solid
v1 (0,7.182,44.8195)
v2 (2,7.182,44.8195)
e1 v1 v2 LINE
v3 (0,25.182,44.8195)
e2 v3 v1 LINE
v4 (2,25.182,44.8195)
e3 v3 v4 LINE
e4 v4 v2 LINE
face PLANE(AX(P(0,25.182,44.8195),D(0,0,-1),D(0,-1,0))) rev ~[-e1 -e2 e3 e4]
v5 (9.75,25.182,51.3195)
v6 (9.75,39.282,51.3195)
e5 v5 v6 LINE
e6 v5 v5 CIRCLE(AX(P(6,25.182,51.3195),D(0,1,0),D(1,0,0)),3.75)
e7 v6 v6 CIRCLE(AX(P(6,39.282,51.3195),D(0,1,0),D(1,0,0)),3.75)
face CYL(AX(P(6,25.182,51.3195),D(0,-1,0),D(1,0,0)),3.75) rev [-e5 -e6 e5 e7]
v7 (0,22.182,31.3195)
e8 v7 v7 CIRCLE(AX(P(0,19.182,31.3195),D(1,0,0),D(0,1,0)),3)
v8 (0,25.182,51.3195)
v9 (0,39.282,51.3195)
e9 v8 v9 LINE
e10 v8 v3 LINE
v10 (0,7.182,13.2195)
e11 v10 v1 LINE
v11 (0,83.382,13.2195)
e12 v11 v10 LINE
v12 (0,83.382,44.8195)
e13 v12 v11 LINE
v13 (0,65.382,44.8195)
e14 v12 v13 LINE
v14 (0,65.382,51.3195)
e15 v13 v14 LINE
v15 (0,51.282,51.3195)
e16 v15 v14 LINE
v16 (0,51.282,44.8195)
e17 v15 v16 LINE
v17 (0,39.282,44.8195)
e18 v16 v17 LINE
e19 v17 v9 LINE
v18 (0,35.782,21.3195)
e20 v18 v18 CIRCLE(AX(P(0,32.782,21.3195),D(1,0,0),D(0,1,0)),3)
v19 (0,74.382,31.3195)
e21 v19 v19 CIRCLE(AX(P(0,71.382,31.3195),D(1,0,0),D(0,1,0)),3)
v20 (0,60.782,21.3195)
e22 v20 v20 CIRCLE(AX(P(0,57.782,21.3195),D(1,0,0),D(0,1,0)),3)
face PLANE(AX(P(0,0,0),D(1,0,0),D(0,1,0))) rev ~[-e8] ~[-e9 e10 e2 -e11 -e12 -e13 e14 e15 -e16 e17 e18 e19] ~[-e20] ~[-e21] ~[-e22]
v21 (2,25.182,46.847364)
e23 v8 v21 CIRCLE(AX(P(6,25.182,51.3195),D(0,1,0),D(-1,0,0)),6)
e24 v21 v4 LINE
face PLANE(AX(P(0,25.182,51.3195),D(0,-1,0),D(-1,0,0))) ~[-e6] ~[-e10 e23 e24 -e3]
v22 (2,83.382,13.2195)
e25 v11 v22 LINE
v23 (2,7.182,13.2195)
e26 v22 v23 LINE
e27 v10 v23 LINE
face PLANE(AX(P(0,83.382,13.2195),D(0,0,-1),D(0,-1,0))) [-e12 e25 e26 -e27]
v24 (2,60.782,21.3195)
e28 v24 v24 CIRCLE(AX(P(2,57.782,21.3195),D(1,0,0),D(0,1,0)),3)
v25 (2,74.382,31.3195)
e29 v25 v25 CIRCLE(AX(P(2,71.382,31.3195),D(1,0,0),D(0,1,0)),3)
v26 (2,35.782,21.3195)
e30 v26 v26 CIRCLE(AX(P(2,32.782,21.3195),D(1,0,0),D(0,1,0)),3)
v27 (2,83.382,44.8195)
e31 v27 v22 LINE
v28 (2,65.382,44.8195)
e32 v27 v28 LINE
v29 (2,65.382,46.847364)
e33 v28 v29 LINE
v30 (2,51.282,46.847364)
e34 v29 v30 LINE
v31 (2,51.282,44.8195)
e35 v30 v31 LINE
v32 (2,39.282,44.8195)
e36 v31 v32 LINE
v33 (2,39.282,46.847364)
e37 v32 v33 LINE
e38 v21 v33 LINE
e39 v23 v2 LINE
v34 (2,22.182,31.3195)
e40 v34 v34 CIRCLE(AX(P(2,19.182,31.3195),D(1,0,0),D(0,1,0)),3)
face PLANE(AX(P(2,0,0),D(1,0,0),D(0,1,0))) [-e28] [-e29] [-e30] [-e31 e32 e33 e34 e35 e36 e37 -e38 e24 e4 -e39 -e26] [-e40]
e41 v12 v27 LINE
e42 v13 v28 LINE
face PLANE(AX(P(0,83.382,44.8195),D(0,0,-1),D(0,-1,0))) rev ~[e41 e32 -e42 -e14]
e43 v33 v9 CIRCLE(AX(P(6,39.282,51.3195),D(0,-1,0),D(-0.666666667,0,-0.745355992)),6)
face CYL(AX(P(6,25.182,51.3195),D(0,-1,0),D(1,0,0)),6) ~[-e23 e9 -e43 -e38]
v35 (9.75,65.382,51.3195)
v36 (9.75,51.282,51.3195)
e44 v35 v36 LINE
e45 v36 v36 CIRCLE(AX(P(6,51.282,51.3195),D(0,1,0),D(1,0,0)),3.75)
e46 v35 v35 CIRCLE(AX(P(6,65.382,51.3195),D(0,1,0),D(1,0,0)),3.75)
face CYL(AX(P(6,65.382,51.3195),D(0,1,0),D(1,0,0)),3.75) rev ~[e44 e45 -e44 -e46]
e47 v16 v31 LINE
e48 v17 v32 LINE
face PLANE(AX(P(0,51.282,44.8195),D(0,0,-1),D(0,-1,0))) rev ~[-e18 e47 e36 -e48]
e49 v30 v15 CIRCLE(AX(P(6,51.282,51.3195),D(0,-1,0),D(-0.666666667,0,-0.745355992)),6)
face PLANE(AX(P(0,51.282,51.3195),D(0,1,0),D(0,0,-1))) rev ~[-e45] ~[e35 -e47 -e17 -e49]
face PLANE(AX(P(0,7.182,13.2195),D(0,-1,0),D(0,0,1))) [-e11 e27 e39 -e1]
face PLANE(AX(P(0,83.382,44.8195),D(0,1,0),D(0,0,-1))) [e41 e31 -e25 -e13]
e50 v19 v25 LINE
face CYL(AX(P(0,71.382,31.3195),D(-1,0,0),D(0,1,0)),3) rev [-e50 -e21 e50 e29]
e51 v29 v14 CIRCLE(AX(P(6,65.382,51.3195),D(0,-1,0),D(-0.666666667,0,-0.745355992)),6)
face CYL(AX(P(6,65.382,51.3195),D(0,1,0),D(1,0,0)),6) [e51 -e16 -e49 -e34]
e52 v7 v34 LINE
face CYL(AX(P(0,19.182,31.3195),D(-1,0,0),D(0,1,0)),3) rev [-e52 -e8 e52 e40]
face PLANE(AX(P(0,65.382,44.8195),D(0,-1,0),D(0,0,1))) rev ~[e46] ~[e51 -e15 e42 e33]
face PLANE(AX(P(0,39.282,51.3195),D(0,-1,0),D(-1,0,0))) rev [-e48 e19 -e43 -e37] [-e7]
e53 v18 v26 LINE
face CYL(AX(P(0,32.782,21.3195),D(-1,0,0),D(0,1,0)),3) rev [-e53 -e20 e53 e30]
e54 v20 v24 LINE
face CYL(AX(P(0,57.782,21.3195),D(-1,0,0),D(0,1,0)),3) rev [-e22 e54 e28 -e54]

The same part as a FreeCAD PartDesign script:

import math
import FreeCAD as App
import Part
import Sketcher

V = App.Vector

doc = App.newDocument("Part")
body = doc.addObject("PartDesign::Body", "Body")

# Sketch on YZ plane
sketch1 = body.newObject("Sketcher::SketchObject", "Sketch")
sketch1.AttachmentSupport = (doc.getObject("YZ_Plane"), [""])
sketch1.MapMode = "FlatFace"
sketch1.addGeometry([
    Part.LineSegment(V(39.282, 51.3195, 0), V(25.182, 51.3195, 0)),  # 0
    Part.LineSegment(V(25.182, 51.3195, 0), V(25.182, 44.8195, 0)),  # 1
    Part.LineSegment(V(25.182, 44.8195, 0), V(7.182, 44.8195, 0)),  # 2
    Part.LineSegment(V(7.182, 44.8195, 0), V(7.182, 13.2195, 0)),  # 3
    Part.LineSegment(V(7.182, 13.2195, 0), V(83.382, 13.2195, 0)),  # 4
    Part.LineSegment(V(83.382, 13.2195, 0), V(83.382, 44.8195, 0)),  # 5
    Part.LineSegment(V(83.382, 44.8195, 0), V(65.382, 44.8195, 0)),  # 6
    Part.LineSegment(V(65.382, 44.8195, 0), V(65.382, 51.3195, 0)),  # 7
    Part.LineSegment(V(65.382, 51.3195, 0), V(51.282, 51.3195, 0)),  # 8
    Part.LineSegment(V(51.282, 51.3195, 0), V(51.282, 44.8195, 0)),  # 9
    Part.LineSegment(V(51.282, 44.8195, 0), V(39.282, 44.8195, 0)),  # 10
    Part.LineSegment(V(39.282, 44.8195, 0), V(39.282, 51.3195, 0)),  # 11
    Part.Circle(V(32.782, 21.3195, 0), V(0, 0, 1), 3),  # 12
    Part.Circle(V(19.182, 31.3195, 0), V(0, 0, 1), 3),  # 13
    Part.Circle(V(57.782, 21.3195, 0), V(0, 0, 1), 3),  # 14
    Part.Circle(V(71.382, 31.3195, 0), V(0, 0, 1), 3),  # 15
], False)
sketch1.addConstraint([
    Sketcher.Constraint("Coincident", 0, 2, 1, 1),
    Sketcher.Constraint("Coincident", 1, 2, 2, 1),
    Sketcher.Constraint("Coincident", 2, 2, 3, 1),
    Sketcher.Constraint("Coincident", 3, 2, 4, 1),
    Sketcher.Constraint("Coincident", 4, 2, 5, 1),
    Sketcher.Constraint("Coincident", 5, 2, 6, 1),
    Sketcher.Constraint("Coincident", 6, 2, 7, 1),
    Sketcher.Constraint("Coincident", 7, 2, 8, 1),
    Sketcher.Constraint("Coincident", 8, 2, 9, 1),
    Sketcher.Constraint("Coincident", 9, 2, 10, 1),
    Sketcher.Constraint("Coincident", 10, 2, 11, 1),
    Sketcher.Constraint("Coincident", 11, 2, 0, 1),
    Sketcher.Constraint("Horizontal", 0),
    Sketcher.Constraint("Vertical", 1),
    Sketcher.Constraint("Horizontal", 2),
    Sketcher.Constraint("Vertical", 3),
    Sketcher.Constraint("Horizontal", 4),
    Sketcher.Constraint("Vertical", 5),
    Sketcher.Constraint("Horizontal", 6),
    Sketcher.Constraint("Vertical", 7),
    Sketcher.Constraint("Horizontal", 8),
    Sketcher.Constraint("Vertical", 9),
    Sketcher.Constraint("Horizontal", 10),
    Sketcher.Constraint("Vertical", 11),
    Sketcher.Constraint("Equal", 12, 13),
    Sketcher.Constraint("Equal", 13, 14),
    Sketcher.Constraint("Equal", 14, 15),
    Sketcher.Constraint("Horizontal", 12, 3, 14, 3),
    Sketcher.Constraint("Horizontal", 13, 3, 15, 3),
    Sketcher.Constraint("Horizontal", 2, 2, 5, 2),
    Sketcher.Constraint("Horizontal", 0, 2, 7, 2),
    Sketcher.Constraint("Horizontal", 6, 2, 9, 2),
    Sketcher.Constraint("Equal", 2, 6),
    Sketcher.Constraint("Equal", 0, 8),
    Sketcher.Constraint("Diameter", 12, 6.0),
    Sketcher.Constraint("DistanceX", 2, 2, 2, 1, 18.0),
    Sketcher.Constraint("DistanceX", 10, 2, 10, 1, 12.0),
    Sketcher.Constraint("DistanceX", 4, 1, 4, 2, 76.2),
    Sketcher.Constraint("DistanceY", 1, 2, 1, 1, 6.5),
    Sketcher.Constraint("DistanceX", 13, 3, 0, 2, 6.0),
    Sketcher.Constraint("DistanceY", 13, 3, 0, 2, 20.0),
    Sketcher.Constraint("DistanceY", 12, 3, 0, 2, 30.0),
    Sketcher.Constraint("DistanceX", 15, 3, 4, 2, 12.0),
    Sketcher.Constraint("DistanceY", 3, 2, 0, 2, 38.1),
    Sketcher.Constraint("DistanceX", 9, 2, 14, 3, 6.5),
    Sketcher.Constraint("DistanceX", 12, 3, 14, 3, 25.0),
    Sketcher.Constraint("DistanceX", -1, 1, 12, 3, 32.782),
    Sketcher.Constraint("DistanceY", -1, 1, 12, 3, 21.3195),
])
pad1 = body.newObject("PartDesign::Pad", "Pad")
pad1.Profile = sketch1
pad1.Length = 2

# Sketch on XZ plane
sketch2 = body.newObject("Sketcher::SketchObject", "Sketch001")
sketch2.AttachmentSupport = (doc.getObject("XZ_Plane"), [""])
sketch2.MapMode = "FlatFace"
sketch2.AttachmentOffset = App.Placement(V(0, 0, -65.382), App.Rotation())
sketch2.addGeometry([
    Part.LineSegment(V(2, 51.3195, 0), V(0, 51.3195, 0)),
    Part.ArcOfCircle(Part.Circle(V(6, 51.3195, 0), V(0, 0, 1), 6), math.radians(-131.810315), math.radians(180)),
    Part.LineSegment(V(2, 46.847364, 0), V(2, 51.3195, 0)),
    Part.Circle(V(6, 51.3195, 0), V(0, 0, 1), 3.75),
], False)
sketch2.addConstraint([
    Sketcher.Constraint("Coincident", 0, 2, 1, 2),
    Sketcher.Constraint("Coincident", 1, 1, 2, 1),
    Sketcher.Constraint("Coincident", 2, 2, 0, 1),
    Sketcher.Constraint("Horizontal", 0),
    Sketcher.Constraint("Vertical", 2),
    Sketcher.Constraint("Coincident", 3, 3, 1, 3),
    Sketcher.Constraint("PointOnObject", 0, 2, -2),
    Sketcher.Constraint("Horizontal", 3, 3, 0, 2),
    Sketcher.Constraint("Radius", 1, 6.0),
    Sketcher.Constraint("Diameter", 3, 7.5),
    Sketcher.Constraint("DistanceX", 1, 1, 1, 3, 4.0),
    Sketcher.Constraint("DistanceY", -1, 1, 1, 3, 51.3195),
])
pad2 = body.newObject("PartDesign::Pad", "Pad001")
pad2.Profile = sketch2
pad2.Length = 14.1
doc.recompute()

datumplane = body.newObject("PartDesign::Plane", "DatumPlane")
datumplane.AttachmentSupport = (doc.getObject("XZ_Plane"), [""])
datumplane.MapMode = "FlatFace"
datumplane.AttachmentOffset = App.Placement(V(0, 0, -45.282), App.Rotation())
mirrored = body.newObject("PartDesign::Mirrored", "Mirrored")
mirrored.Originals = [pad2]
mirrored.MirrorPlane = (datumplane, [""])
body.Tip = mirrored

doc.recompute()
